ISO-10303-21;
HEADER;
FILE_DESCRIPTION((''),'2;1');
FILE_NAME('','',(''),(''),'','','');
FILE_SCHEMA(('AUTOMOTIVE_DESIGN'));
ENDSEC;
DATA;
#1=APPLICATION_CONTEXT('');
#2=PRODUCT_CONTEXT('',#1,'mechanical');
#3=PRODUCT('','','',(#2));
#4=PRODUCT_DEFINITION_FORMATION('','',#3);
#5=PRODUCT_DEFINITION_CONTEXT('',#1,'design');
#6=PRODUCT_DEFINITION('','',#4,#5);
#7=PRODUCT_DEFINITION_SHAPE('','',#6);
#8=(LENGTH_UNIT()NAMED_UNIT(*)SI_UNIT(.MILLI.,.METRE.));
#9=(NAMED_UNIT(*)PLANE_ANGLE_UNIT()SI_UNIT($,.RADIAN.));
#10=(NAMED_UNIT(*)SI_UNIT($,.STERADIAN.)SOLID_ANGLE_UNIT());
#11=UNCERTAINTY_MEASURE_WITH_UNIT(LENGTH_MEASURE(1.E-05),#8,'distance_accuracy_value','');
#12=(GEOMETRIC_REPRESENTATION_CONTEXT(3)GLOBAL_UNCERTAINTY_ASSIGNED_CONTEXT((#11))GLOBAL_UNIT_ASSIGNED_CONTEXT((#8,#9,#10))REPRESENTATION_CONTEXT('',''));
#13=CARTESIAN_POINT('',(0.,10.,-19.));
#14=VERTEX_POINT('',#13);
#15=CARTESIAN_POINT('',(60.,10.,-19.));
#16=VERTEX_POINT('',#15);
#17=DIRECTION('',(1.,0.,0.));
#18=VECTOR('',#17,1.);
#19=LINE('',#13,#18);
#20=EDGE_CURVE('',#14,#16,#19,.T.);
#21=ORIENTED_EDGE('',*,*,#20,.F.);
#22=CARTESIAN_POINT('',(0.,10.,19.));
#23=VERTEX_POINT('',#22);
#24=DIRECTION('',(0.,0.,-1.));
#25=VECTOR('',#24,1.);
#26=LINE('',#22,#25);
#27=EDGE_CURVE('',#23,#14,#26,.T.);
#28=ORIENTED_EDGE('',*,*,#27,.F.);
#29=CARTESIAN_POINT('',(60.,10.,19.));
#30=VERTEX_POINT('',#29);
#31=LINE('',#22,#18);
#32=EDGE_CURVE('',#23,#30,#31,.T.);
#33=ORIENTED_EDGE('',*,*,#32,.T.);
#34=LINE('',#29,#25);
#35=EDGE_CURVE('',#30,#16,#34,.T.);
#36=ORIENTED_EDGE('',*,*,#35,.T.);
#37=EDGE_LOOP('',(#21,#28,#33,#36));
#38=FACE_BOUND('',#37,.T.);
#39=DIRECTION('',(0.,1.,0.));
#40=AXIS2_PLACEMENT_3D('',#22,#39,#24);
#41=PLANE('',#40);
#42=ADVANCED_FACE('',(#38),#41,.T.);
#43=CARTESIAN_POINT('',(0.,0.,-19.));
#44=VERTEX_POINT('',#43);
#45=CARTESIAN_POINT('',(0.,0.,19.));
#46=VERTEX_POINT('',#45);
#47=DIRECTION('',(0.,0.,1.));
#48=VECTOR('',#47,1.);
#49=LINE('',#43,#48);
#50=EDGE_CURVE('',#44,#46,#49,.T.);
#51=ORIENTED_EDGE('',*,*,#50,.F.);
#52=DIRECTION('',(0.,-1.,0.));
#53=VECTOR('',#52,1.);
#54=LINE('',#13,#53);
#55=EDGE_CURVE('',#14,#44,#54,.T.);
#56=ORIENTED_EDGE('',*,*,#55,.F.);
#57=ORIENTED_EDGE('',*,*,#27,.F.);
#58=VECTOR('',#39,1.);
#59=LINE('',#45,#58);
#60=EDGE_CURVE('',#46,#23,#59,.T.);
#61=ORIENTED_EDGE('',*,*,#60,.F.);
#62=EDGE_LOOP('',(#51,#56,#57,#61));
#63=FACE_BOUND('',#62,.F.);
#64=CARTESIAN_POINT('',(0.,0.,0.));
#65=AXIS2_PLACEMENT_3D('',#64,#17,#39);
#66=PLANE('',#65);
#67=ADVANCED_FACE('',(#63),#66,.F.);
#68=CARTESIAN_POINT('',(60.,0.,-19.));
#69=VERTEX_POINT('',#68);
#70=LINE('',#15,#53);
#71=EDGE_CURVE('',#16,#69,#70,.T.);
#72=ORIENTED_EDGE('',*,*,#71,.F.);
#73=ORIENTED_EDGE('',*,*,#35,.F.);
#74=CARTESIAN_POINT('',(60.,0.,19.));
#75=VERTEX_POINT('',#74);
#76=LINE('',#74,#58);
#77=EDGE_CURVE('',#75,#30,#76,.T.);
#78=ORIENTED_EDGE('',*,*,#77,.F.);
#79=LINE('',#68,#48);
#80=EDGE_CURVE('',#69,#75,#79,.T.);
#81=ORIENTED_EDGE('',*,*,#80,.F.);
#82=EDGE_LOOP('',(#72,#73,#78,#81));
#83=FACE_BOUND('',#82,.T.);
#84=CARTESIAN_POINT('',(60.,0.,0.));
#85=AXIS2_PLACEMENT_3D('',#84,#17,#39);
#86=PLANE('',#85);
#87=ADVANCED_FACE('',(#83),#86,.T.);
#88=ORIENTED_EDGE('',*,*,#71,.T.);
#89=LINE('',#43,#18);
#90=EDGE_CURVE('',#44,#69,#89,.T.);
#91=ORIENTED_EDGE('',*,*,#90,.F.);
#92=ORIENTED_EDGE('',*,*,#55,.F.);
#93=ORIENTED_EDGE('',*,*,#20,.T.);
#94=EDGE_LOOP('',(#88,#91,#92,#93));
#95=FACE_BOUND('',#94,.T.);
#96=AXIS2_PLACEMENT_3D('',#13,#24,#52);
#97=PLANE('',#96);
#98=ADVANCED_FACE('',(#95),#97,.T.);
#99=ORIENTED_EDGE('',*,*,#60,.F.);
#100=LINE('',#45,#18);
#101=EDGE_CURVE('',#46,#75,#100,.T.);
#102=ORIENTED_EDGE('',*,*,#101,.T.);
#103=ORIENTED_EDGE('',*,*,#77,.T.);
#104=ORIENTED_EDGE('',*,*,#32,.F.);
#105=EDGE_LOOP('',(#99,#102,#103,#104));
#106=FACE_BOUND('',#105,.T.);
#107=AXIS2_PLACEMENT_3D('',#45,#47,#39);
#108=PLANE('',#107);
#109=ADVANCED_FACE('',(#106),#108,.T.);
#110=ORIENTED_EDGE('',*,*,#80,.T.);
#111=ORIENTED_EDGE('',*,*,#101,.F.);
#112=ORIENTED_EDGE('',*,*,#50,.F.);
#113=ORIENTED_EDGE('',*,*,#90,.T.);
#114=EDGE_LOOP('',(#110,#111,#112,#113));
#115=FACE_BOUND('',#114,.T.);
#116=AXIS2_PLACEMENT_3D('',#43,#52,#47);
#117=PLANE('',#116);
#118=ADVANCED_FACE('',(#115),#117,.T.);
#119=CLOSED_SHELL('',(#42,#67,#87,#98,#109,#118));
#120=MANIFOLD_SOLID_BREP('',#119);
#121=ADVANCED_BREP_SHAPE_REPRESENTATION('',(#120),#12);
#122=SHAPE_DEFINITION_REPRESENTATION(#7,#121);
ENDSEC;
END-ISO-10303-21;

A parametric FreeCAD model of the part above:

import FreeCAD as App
import Part
import Sketcher
from FreeCAD import Vector
Q = App.Units.Quantity


def add_polygon(sketch, points):
    """Adds a closed chain of lines whose ends are joined by coincident constraints."""
    first, n = sketch.GeometryCount, len(points)
    for a, b in zip(points, points[1:] + points[:1]):
        sketch.addGeometry(Part.LineSegment(App.Vector(*a, 0), App.Vector(*b, 0)), False)
    for i in range(n):
        sketch.addConstraint(Sketcher.Constraint("Coincident", first + i, 2, first + (i + 1) % n, 1))

doc = App.newDocument("Part")
body = doc.addObject("PartDesign::Body", "Body")

# Sketch on YZ plane
sketch1 = body.newObject("Sketcher::SketchObject", "Sketch")
sketch1.AttachmentSupport = (doc.getObject("YZ_Plane"), [""])
sketch1.MapMode = "FlatFace"
add_polygon(sketch1, [(10, 19), (0, 19), (0, -19), (10, -19)])  # lines 0-3
sketch1.addConstraint(Sketcher.Constraint("Horizontal", 0))
sketch1.addConstraint(Sketcher.Constraint("Vertical", 1))
sketch1.addConstraint(Sketcher.Constraint("Horizontal", 2))
sketch1.addConstraint(Sketcher.Constraint("Vertical", 3))
sketch1.addConstraint(Sketcher.Constraint("Symmetric", 0, 2, 1, 2, -1, 1))
sketch1.addConstraint(Sketcher.Constraint("DistanceX", 0, 2, 0, 1, Q("10 mm")))
sketch1.addConstraint(Sketcher.Constraint("DistanceY", 1, 2, 1, 1, Q("38 mm")))
pad1 = body.newObject("PartDesign::Pad", "Pad")
pad1.Profile = sketch1
pad1.Length = 60

doc.recompute()
